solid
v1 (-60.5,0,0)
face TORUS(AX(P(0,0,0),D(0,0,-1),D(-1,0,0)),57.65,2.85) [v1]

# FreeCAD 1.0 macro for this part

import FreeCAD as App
import Part
import Sketcher

doc = App.newDocument("Part")
body = doc.addObject("PartDesign::Body", "Body")

sketch1 = body.newObject("Sketcher::SketchObject", "Sketch")
sketch1.AttachmentSupport = (doc.getObject("XZ_Plane"), [""])
sketch1.MapMode = "FlatFace"
sketch1.addGeometry(Part.Circle(App.Vector(-57.65, 0, 0), App.Vector(0, 0, 1), 2.85), False)
sketch1.addConstraint([
    Sketcher.Constraint("PointOnObject", 0, 3, -1),
    Sketcher.Constraint("Diameter", 0, 5.7),
    Sketcher.Constraint("DistanceX", 0, 3, -1, 1, 57.65),
])

sketch2 = body.newObject("Sketcher::SketchObject", "Sketch001")
sketch2.AttachmentSupport = (doc.getObject("XY_Plane"), [""])
sketch2.MapMode = "FlatFace"
sketch2.addGeometry(Part.Circle(App.Vector(0, 0, 0), App.Vector(0, 0, 1), 54.8), False)
sketch2.addConstraint([
    Sketcher.Constraint("Coincident", 0, 3, -1, 1),
    Sketcher.Constraint("Diameter", 0, 109.6),
])
doc.recompute()

additivepipe = body.newObject("PartDesign::AdditivePipe", "AdditivePipe")
additivepipe.Profile = sketch1
additivepipe.Spine = (sketch2, ["Edge1"])

doc.recompute()
